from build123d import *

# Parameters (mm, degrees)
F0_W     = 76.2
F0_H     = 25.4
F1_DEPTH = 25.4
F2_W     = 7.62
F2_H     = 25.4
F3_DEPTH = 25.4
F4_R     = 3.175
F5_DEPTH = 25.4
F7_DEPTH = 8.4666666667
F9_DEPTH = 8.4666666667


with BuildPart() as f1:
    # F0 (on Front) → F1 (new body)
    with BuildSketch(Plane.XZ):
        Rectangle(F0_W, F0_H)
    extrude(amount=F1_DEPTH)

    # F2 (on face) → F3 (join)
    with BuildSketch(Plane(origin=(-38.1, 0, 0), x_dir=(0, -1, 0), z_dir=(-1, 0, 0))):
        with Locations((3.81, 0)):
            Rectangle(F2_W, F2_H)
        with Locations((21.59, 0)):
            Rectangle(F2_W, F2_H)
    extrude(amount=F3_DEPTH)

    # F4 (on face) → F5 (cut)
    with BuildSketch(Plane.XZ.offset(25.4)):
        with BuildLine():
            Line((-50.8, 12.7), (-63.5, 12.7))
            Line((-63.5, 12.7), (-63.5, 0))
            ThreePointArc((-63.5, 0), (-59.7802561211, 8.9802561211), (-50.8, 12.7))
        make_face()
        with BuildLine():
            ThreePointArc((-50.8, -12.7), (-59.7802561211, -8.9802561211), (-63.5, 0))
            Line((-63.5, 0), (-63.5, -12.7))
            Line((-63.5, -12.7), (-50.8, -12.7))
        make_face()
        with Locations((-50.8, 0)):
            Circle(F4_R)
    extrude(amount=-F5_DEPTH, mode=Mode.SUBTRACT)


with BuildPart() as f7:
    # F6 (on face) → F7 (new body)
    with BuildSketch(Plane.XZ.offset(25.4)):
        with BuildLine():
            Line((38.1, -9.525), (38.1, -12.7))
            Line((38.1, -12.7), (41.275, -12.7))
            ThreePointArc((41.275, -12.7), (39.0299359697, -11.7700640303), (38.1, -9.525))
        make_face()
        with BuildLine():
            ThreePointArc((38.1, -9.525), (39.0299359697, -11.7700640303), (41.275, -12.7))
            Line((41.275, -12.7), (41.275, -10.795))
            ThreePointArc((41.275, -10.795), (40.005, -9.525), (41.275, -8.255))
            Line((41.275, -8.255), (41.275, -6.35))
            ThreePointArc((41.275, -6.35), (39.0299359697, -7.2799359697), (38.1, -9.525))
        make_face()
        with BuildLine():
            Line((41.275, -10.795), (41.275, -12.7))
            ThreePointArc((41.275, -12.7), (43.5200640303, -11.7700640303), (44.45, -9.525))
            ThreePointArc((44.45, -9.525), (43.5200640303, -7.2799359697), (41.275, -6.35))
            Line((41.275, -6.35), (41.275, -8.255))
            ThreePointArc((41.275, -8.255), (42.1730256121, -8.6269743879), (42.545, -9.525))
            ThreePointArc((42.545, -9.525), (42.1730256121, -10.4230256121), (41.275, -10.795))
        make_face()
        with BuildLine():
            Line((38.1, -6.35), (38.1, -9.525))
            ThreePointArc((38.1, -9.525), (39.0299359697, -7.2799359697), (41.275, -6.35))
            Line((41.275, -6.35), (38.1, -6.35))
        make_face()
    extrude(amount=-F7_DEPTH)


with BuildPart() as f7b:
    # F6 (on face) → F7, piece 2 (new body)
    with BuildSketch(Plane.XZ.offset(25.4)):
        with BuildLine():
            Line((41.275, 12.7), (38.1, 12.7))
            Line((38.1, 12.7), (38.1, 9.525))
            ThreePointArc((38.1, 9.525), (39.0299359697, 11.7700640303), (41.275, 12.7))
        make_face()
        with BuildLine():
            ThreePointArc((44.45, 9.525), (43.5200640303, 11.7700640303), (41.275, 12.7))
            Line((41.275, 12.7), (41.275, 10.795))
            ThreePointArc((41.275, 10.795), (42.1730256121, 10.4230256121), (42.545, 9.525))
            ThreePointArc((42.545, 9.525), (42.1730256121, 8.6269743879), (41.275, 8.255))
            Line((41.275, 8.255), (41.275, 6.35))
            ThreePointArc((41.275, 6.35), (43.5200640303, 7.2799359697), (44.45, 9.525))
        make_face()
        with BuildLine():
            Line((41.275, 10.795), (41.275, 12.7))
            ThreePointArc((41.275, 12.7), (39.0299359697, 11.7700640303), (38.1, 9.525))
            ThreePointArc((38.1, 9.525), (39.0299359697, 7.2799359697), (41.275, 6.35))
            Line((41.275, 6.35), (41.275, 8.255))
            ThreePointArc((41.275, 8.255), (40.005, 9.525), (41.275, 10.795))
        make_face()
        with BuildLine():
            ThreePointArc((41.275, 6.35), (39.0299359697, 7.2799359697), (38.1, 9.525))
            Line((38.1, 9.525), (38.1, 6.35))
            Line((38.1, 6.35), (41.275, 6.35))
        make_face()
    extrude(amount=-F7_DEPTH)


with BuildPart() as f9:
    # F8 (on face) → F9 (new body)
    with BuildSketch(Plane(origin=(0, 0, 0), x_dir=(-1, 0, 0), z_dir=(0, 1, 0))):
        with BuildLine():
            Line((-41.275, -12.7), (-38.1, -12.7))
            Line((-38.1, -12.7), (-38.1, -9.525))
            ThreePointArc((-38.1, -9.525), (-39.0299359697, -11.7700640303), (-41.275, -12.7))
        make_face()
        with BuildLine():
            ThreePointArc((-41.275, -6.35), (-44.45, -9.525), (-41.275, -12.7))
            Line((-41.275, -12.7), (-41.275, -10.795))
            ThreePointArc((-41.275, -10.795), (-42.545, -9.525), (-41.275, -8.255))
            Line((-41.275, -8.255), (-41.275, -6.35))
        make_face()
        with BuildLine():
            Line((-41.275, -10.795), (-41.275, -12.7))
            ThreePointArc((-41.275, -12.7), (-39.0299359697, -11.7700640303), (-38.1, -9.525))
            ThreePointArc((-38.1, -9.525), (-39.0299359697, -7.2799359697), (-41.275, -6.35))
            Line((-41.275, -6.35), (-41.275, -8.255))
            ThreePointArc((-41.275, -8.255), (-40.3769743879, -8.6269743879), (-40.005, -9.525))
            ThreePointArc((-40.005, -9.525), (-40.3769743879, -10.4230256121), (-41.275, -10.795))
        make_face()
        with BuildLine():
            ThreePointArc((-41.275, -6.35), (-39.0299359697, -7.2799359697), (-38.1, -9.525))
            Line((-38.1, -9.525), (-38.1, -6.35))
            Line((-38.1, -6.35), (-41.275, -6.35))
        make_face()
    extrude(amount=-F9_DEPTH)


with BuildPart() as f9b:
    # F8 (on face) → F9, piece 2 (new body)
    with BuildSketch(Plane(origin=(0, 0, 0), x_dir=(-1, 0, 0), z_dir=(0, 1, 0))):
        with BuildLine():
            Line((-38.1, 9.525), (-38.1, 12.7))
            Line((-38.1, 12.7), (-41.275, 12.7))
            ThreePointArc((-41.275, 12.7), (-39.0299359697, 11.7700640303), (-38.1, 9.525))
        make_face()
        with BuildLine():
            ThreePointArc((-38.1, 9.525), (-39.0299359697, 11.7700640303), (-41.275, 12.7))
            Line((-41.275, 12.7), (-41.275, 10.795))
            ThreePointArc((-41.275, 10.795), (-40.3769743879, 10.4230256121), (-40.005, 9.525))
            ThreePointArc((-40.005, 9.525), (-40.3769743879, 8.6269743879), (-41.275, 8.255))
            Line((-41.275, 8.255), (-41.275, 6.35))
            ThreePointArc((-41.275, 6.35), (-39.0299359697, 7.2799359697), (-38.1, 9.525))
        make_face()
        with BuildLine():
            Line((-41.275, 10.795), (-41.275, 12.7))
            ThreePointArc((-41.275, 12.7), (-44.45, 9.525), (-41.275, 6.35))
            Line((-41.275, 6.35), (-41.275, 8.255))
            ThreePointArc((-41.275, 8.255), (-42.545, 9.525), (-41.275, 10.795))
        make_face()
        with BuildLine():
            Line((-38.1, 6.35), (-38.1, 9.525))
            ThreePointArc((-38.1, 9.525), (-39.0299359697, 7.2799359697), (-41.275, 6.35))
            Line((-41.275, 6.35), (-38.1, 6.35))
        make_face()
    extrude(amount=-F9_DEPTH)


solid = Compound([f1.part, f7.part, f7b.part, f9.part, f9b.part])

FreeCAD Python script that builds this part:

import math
import FreeCAD as App
import Part
import Sketcher
from FreeCAD import Vector
Q = App.Units.Quantity

doc = App.newDocument("Part")
body = doc.addObject("PartDesign::Body", "Body")

sketch1 = body.newObject("Sketcher::SketchObject", "Sketch")
sketch1.AttachmentSupport = (doc.getObject("XZ_Plane"), [""])
sketch1.MapMode = "FlatFace"
sketch1.addGeometry([
    Part.LineSegment(Vector(-38.1, 12.7, 0), Vector(-38.1, -12.7, 0)),
    Part.LineSegment(Vector(-38.1, -12.7, 0), Vector(38.1, -12.7, 0)),
    Part.LineSegment(Vector(38.1, -12.7, 0), Vector(38.1, 12.7, 0)),
    Part.LineSegment(Vector(38.1, 12.7, 0), Vector(-38.1, 12.7, 0)),
], False)
sketch1.addConstraint([
    Sketcher.Constraint("Coincident", 0, 2, 1, 1),
    Sketcher.Constraint("Coincident", 1, 2, 2, 1),
    Sketcher.Constraint("Coincident", 2, 2, 3, 1),
    Sketcher.Constraint("Coincident", 3, 2, 0, 1),
    Sketcher.Constraint("Vertical", 0),
    Sketcher.Constraint("Horizontal", 1),
    Sketcher.Constraint("Vertical", 2),
    Sketcher.Constraint("Horizontal", 3),
    Sketcher.Constraint("Symmetric", 0, 2, 2, 2, -1, 1),
    Sketcher.Constraint("DistanceX", 1, 1, 1, 2, Q("3 in")),
    Sketcher.Constraint("DistanceY", 0, 2, 0, 1, Q("1 in")),
])
pad1 = body.newObject("PartDesign::Pad", "Pad")
pad1.Profile = sketch1
pad1.Length = Q("1 in")

sketch2 = body.newObject("Sketcher::SketchObject", "Sketch001")
sketch2.AttachmentSupport = (doc.getObject("YZ_Plane"), [""])
sketch2.MapMode = "FlatFace"
sketch2.AttachmentOffset = App.Placement(Vector(0, 0, -1.5 * 25.4), App.Rotation())
sketch2.addGeometry([
    Part.LineSegment(Vector(0, 12.7, 0), Vector(0, -12.7, 0)),
    Part.LineSegment(Vector(0, -12.7, 0), Vector(-7.62, -12.7, 0)),
    Part.LineSegment(Vector(-7.62, -12.7, 0), Vector(-7.62, 12.7, 0)),
    Part.LineSegment(Vector(-7.62, 12.7, 0), Vector(0, 12.7, 0)),
    Part.LineSegment(Vector(-17.78, 12.7, 0), Vector(-17.78, -12.7, 0)),
    Part.LineSegment(Vector(-17.78, -12.7, 0), Vector(-25.4, -12.7, 0)),
    Part.LineSegment(Vector(-25.4, -12.7, 0), Vector(-25.4, 12.7, 0)),
    Part.LineSegment(Vector(-25.4, 12.7, 0), Vector(-17.78, 12.7, 0)),
], False)
sketch2.addConstraint([
    Sketcher.Constraint("Coincident", 0, 2, 1, 1),
    Sketcher.Constraint("Coincident", 1, 2, 2, 1),
    Sketcher.Constraint("Coincident", 2, 2, 3, 1),
    Sketcher.Constraint("Coincident", 3, 2, 0, 1),
    Sketcher.Constraint("Coincident", 4, 2, 5, 1),
    Sketcher.Constraint("Coincident", 5, 2, 6, 1),
    Sketcher.Constraint("Coincident", 6, 2, 7, 1),
    Sketcher.Constraint("Coincident", 7, 2, 4, 1),
    Sketcher.Constraint("Vertical", 0),
    Sketcher.Constraint("Horizontal", 1),
    Sketcher.Constraint("Vertical", 2),
    Sketcher.Constraint("Horizontal", 3),
    Sketcher.Constraint("Vertical", 4),
    Sketcher.Constraint("Horizontal", 5),
    Sketcher.Constraint("Vertical", 6),
    Sketcher.Constraint("Horizontal", 7),
    Sketcher.Constraint("Symmetric", 0, 2, 3, 2, -1, 1),
    Sketcher.Constraint("Horizontal", 1, 2, 4, 2),
    Sketcher.Constraint("Horizontal", 3, 2, 6, 2),
    Sketcher.Constraint("Equal", 3, 5),
    Sketcher.Constraint("DistanceY", 0, 2, 0, 1, Q("1 in")),
    Sketcher.Constraint("DistanceX", 1, 2, 1, 1, Q("0.3 in")),
    Sketcher.Constraint("DistanceX", 5, 2, -1, 1, Q("1 in")),
])
pad2 = body.newObject("PartDesign::Pad", "Pad001")
pad2.Profile = sketch2
pad2.Length = Q("1 in")
pad2.Reversed = True

sketch3 = body.newObject("Sketcher::SketchObject", "Sketch002")
sketch3.AttachmentSupport = (doc.getObject("XZ_Plane"), [""])
sketch3.MapMode = "FlatFace"
sketch3.AttachmentOffset = App.Placement(Vector(0, 0, 1 * 25.4), App.Rotation())
sketch3.addGeometry([
    Part.LineSegment(Vector(-50.8, 12.7, 0), Vector(-63.5, 12.7, 0)),
    Part.LineSegment(Vector(-63.5, 12.7, 0), Vector(-63.5, 0, 0)),
    Part.ArcOfCircle(Part.Circle(Vector(-50.8, 0, 0), Vector(0, 0, 1), 12.7), math.radians(90), math.radians(180)),
    Part.ArcOfCircle(Part.Circle(Vector(-50.8, 0, 0), Vector(0, 0, 1), 12.7), math.radians(180), math.radians(270)),
    Part.LineSegment(Vector(-63.5, 0, 0), Vector(-63.5, -12.7, 0)),
    Part.LineSegment(Vector(-63.5, -12.7, 0), Vector(-50.8, -12.7, 0)),
    Part.Circle(Vector(-50.8, 0, 0), Vector(0, 0, 1), 3.175),
], False)
sketch3.addConstraint([
    Sketcher.Constraint("Coincident", 0, 2, 1, 1),
    Sketcher.Constraint("Tangent", 1, 2, 2, 2),
    Sketcher.Constraint("Tangent", 2, 1, 0, 1),
    Sketcher.Constraint("Tangent", 3, 1, 4, 1),
    Sketcher.Constraint("Coincident", 4, 2, 5, 1),
    Sketcher.Constraint("Tangent", 5, 2, 3, 2),
    Sketcher.Constraint("Horizontal", 0),
    Sketcher.Constraint("Vertical", 1),
    Sketcher.Constraint("Vertical", 4),
    Sketcher.Constraint("Horizontal", 5),
    Sketcher.Constraint("Coincident", 3, 3, 2, 3),
    Sketcher.Constraint("Coincident", 6, 3, 2, 3),
    Sketcher.Constraint("Equal", 2, 3),
    Sketcher.Constraint("PointOnObject", 2, 3, -1),
    Sketcher.Constraint("Radius", 2, Q("0.5 in")),
    Sketcher.Constraint("Diameter", 6, Q("0.25 in")),
    Sketcher.Constraint("DistanceX", 2, 3, -1, 1, Q("2 in")),
])
pocket1 = body.newObject("PartDesign::Pocket", "Pocket")
pocket1.Profile = sketch3
pocket1.Length = Q("1 in")
body2 = doc.addObject("PartDesign::Body", "Body001")

sketch4 = body2.newObject("Sketcher::SketchObject", "Sketch003")
sketch4.AttachmentSupport = (doc.getObject("XZ_Plane001"), [""])
sketch4.MapMode = "FlatFace"
sketch4.AttachmentOffset = App.Placement(Vector(0, 0, 1 * 25.4), App.Rotation())
sketch4.addGeometry([
    Part.LineSegment(Vector(38.1, -12.7, 0), Vector(41.275, -12.7, 0)),
    Part.ArcOfCircle(Part.Circle(Vector(41.275, -9.525, 0), Vector(0, 0, 1), 3.175), math.radians(-90), math.radians(0)),
    Part.ArcOfCircle(Part.Circle(Vector(41.275, -9.525, 0), Vector(0, 0, 1), 3.175), math.radians(0), math.radians(90)),
    Part.LineSegment(Vector(41.275, -6.35, 0), Vector(38.1, -6.35, 0)),
    Part.LineSegment(Vector(38.1, -6.35, 0), Vector(38.1, -12.7, 0)),
    Part.ArcOfCircle(Part.Circle(Vector(41.275, -9.525, 0), Vector(0, 0, 1), 1.27), math.radians(90), math.radians(270)),
    Part.ArcOfCircle(Part.Circle(Vector(41.275, -9.525, 0), Vector(0, 0, 1), 1.27), math.radians(0), math.radians(90)),
    Part.ArcOfCircle(Part.Circle(Vector(41.275, -9.525, 0), Vector(0, 0, 1), 1.27), math.radians(-90), math.radians(0)),
], False)
sketch4.addConstraint([
    Sketcher.Constraint("Tangent", 0, 2, 1, 1),
    Sketcher.Constraint("Tangent", 1, 2, 2, 1),
    Sketcher.Constraint("Tangent", 2, 2, 3, 1),
    Sketcher.Constraint("Coincident", 3, 2, 4, 1),
    Sketcher.Constraint("Coincident", 4, 2, 0, 1),
    Sketcher.Constraint("Tangent", 5, 1, 6, 2),
    Sketcher.Constraint("Tangent", 6, 1, 7, 2),
    Sketcher.Constraint("Tangent", 7, 1, 5, 2),
    Sketcher.Constraint("Horizontal", 0),
    Sketcher.Constraint("Horizontal", 3),
    Sketcher.Constraint("Vertical", 4),
    Sketcher.Constraint("Coincident", 5, 3, 1, 3),
    Sketcher.Constraint("Equal", 1, 2),
    Sketcher.Constraint("Horizontal", 7, 3, 1, 2),
    Sketcher.Constraint("Horizontal", 1, 2, 6, 1),
    Sketcher.Constraint("Vertical", 2, 2, 5, 1),
    Sketcher.Constraint("Vertical", 5, 1, 7, 1),
    Sketcher.Constraint("Radius", 5, Q("0.05 in")),
    Sketcher.Constraint("Radius", 1, Q("0.125 in")),
    Sketcher.Constraint("DistanceY", 0, 2, -1, 1, Q("0.5 in")),
    Sketcher.Constraint("DistanceX", -1, 1, 3, 2, Q("1.5 in")),
    Sketcher.Constraint("DistanceX", 0, 1, 0, 2, Q("0.125 in")),
])
pad3 = body2.newObject("PartDesign::Pad", "Pad002")
pad3.Profile = sketch4
pad3.Length = 8.466667
pad3.Reversed = True
body3 = doc.addObject("PartDesign::Body", "Body002")

sketch5 = body3.newObject("Sketcher::SketchObject", "Sketch004")
sketch5.AttachmentSupport = (doc.getObject("XZ_Plane002"), [""])
sketch5.MapMode = "FlatFace"
sketch5.AttachmentOffset = App.Placement(Vector(0, 0, 1 * 25.4), App.Rotation())
sketch5.addGeometry([
    Part.LineSegment(Vector(41.275, 12.7, 0), Vector(38.1, 12.7, 0)),
    Part.LineSegment(Vector(38.1, 12.7, 0), Vector(38.1, 6.35, 0)),
    Part.LineSegment(Vector(38.1, 6.35, 0), Vector(41.275, 6.35, 0)),
    Part.ArcOfCircle(Part.Circle(Vector(41.275, 9.525, 0), Vector(0, 0, 1), 3.175), math.radians(-90), math.radians(0)),
    Part.ArcOfCircle(Part.Circle(Vector(41.275, 9.525, 0), Vector(0, 0, 1), 3.175), math.radians(0), math.radians(90)),
    Part.ArcOfCircle(Part.Circle(Vector(41.275, 9.525, 0), Vector(0, 0, 1), 1.27), math.radians(90), math.radians(270)),
    Part.ArcOfCircle(Part.Circle(Vector(41.275, 9.525, 0), Vector(0, 0, 1), 1.27), math.radians(0), math.radians(90)),
    Part.ArcOfCircle(Part.Circle(Vector(41.275, 9.525, 0), Vector(0, 0, 1), 1.27), math.radians(-90), math.radians(0)),
], False)
sketch5.addConstraint([
    Sketcher.Constraint("Coincident", 0, 2, 1, 1),
    Sketcher.Constraint("Coincident", 1, 2, 2, 1),
    Sketcher.Constraint("Tangent", 2, 2, 3, 1),
    Sketcher.Constraint("Tangent", 3, 2, 4, 1),
    Sketcher.Constraint("Tangent", 4, 2, 0, 1),
    Sketcher.Constraint("Tangent", 5, 1, 6, 2),
    Sketcher.Constraint("Tangent", 6, 1, 7, 2),
    Sketcher.Constraint("Tangent", 7, 1, 5, 2),
    Sketcher.Constraint("Horizontal", 0),
    Sketcher.Constraint("Vertical", 1),
    Sketcher.Constraint("Horizontal", 2),
    Sketcher.Constraint("Coincident", 5, 3, 3, 3),
    Sketcher.Constraint("Equal", 3, 4),
    Sketcher.Constraint("Horizontal", 7, 3, 3, 2),
    Sketcher.Constraint("Horizontal", 3, 2, 6, 1),
    Sketcher.Constraint("Vertical", 4, 2, 5, 1),
    Sketcher.Constraint("Vertical", 5, 1, 7, 1),
    Sketcher.Constraint("Radius", 5, Q("0.05 in")),
    Sketcher.Constraint("Radius", 3, Q("0.125 in")),
    Sketcher.Constraint("DistanceX", -1, 1, 0, 2, Q("1.5 in")),
    Sketcher.Constraint("DistanceY", -1, 1, 0, 2, Q("0.5 in")),
    Sketcher.Constraint("DistanceX", 0, 2, 0, 1, Q("0.125 in")),
])
pad4 = body3.newObject("PartDesign::Pad", "Pad003")
pad4.Profile = sketch5
pad4.Length = 8.466667
pad4.Reversed = True
body4 = doc.addObject("PartDesign::Body", "Body003")

sketch6 = body4.newObject("Sketcher::SketchObject", "Sketch005")
sketch6.AttachmentSupport = (doc.getObject("XZ_Plane003"), [""])
sketch6.MapMode = "FlatFace"
sketch6.addGeometry([
    Part.LineSegment(Vector(41.275, -12.7, 0), Vector(38.1, -12.7, 0)),
    Part.LineSegment(Vector(38.1, -12.7, 0), Vector(38.1, -6.35, 0)),
    Part.LineSegment(Vector(38.1, -6.35, 0), Vector(41.275, -6.35, 0)),
    Part.ArcOfCircle(Part.Circle(Vector(41.275, -9.525, 0), Vector(0, 0, 1), 3.175), math.radians(-90), math.radians(90)),
    Part.ArcOfCircle(Part.Circle(Vector(41.275, -9.525, 0), Vector(0, 0, 1), 1.27), math.radians(180), math.radians(270)),
    Part.ArcOfCircle(Part.Circle(Vector(41.275, -9.525, 0), Vector(0, 0, 1), 1.27), math.radians(-90), math.radians(90)),
    Part.ArcOfCircle(Part.Circle(Vector(41.275, -9.525, 0), Vector(0, 0, 1), 1.27), math.radians(90), math.radians(180)),
], False)
sketch6.addConstraint([
    Sketcher.Constraint("Coincident", 0, 2, 1, 1),
    Sketcher.Constraint("Coincident", 1, 2, 2, 1),
    Sketcher.Constraint("Tangent", 2, 2, 3, 2),
    Sketcher.Constraint("Tangent", 3, 1, 0, 1),
    Sketcher.Constraint("Tangent", 4, 2, 5, 1),
    Sketcher.Constraint("Tangent", 5, 2, 6, 1),
    Sketcher.Constraint("Tangent", 6, 2, 4, 1),
    Sketcher.Constraint("Horizontal", 0),
    Sketcher.Constraint("Vertical", 1),
    Sketcher.Constraint("Horizontal", 2),
    Sketcher.Constraint("Coincident", 4, 3, 3, 3),
    Sketcher.Constraint("Horizontal", 5, 3, 6, 2),
    Sketcher.Constraint("Vertical", 3, 1, 4, 2),
    Sketcher.Constraint("Vertical", 4, 2, 5, 2),
    Sketcher.Constraint("Radius", 4, Q("0.05 in")),
    Sketcher.Constraint("Radius", 3, Q("0.125 in")),
    Sketcher.Constraint("DistanceX", -1, 1, 0, 2, Q("1.5 in")),
    Sketcher.Constraint("DistanceY", 0, 2, -1, 1, Q("0.5 in")),
    Sketcher.Constraint("DistanceX", 0, 2, 0, 1, Q("0.125 in")),
])
pad5 = body4.newObject("PartDesign::Pad", "Pad004")
pad5.Profile = sketch6
pad5.Length = 8.466667
body5 = doc.addObject("PartDesign::Body", "Body004")

sketch7 = body5.newObject("Sketcher::SketchObject", "Sketch006")
sketch7.AttachmentSupport = (doc.getObject("XZ_Plane004"), [""])
sketch7.MapMode = "FlatFace"
sketch7.addGeometry([
    Part.LineSegment(Vector(38.1, 12.7, 0), Vector(41.275, 12.7, 0)),
    Part.ArcOfCircle(Part.Circle(Vector(41.275, 9.525, 0), Vector(0, 0, 1), 3.175), math.radians(-90), math.radians(90)),
    Part.LineSegment(Vector(41.275, 6.35, 0), Vector(38.1, 6.35, 0)),
    Part.LineSegment(Vector(38.1, 6.35, 0), Vector(38.1, 12.7, 0)),
    Part.ArcOfCircle(Part.Circle(Vector(41.275, 9.525, 0), Vector(0, 0, 1), 1.27), math.radians(90), math.radians(180)),
    Part.ArcOfCircle(Part.Circle(Vector(41.275, 9.525, 0), Vector(0, 0, 1), 1.27), math.radians(180), math.radians(270)),
    Part.ArcOfCircle(Part.Circle(Vector(41.275, 9.525, 0), Vector(0, 0, 1), 1.27), math.radians(-90), math.radians(90)),
], False)
sketch7.addConstraint([
    Sketcher.Constraint("Tangent", 0, 2, 1, 2),
    Sketcher.Constraint("Tangent", 1, 1, 2, 1),
    Sketcher.Constraint("Coincident", 2, 2, 3, 1),
    Sketcher.Constraint("Coincident", 3, 2, 0, 1),
    Sketcher.Constraint("Tangent", 4, 2, 5, 1),
    Sketcher.Constraint("Tangent", 5, 2, 6, 1),
    Sketcher.Constraint("Tangent", 6, 2, 4, 1),
    Sketcher.Constraint("Horizontal", 0),
    Sketcher.Constraint("Horizontal", 2),
    Sketcher.Constraint("Vertical", 3),
    Sketcher.Constraint("Coincident", 4, 3, 1, 3),
    Sketcher.Constraint("Horizontal", 6, 3, 4, 2),
    Sketcher.Constraint("Vertical", 1, 1, 5, 2),
    Sketcher.Constraint("Vertical", 5, 2, 6, 2),
    Sketcher.Constraint("Radius", 4, Q("0.05 in")),
    Sketcher.Constraint("Radius", 1, Q("0.125 in")),
    Sketcher.Constraint("DistanceY", -1, 1, 0, 2, Q("0.5 in")),
    Sketcher.Constraint("DistanceX", -1, 1, 2, 2, Q("1.5 in")),
    Sketcher.Constraint("DistanceX", 0, 1, 0, 2, Q("0.125 in")),
])
pad6 = body5.newObject("PartDesign::Pad", "Pad005")
pad6.Profile = sketch7
pad6.Length = 8.466667

doc.recompute()
